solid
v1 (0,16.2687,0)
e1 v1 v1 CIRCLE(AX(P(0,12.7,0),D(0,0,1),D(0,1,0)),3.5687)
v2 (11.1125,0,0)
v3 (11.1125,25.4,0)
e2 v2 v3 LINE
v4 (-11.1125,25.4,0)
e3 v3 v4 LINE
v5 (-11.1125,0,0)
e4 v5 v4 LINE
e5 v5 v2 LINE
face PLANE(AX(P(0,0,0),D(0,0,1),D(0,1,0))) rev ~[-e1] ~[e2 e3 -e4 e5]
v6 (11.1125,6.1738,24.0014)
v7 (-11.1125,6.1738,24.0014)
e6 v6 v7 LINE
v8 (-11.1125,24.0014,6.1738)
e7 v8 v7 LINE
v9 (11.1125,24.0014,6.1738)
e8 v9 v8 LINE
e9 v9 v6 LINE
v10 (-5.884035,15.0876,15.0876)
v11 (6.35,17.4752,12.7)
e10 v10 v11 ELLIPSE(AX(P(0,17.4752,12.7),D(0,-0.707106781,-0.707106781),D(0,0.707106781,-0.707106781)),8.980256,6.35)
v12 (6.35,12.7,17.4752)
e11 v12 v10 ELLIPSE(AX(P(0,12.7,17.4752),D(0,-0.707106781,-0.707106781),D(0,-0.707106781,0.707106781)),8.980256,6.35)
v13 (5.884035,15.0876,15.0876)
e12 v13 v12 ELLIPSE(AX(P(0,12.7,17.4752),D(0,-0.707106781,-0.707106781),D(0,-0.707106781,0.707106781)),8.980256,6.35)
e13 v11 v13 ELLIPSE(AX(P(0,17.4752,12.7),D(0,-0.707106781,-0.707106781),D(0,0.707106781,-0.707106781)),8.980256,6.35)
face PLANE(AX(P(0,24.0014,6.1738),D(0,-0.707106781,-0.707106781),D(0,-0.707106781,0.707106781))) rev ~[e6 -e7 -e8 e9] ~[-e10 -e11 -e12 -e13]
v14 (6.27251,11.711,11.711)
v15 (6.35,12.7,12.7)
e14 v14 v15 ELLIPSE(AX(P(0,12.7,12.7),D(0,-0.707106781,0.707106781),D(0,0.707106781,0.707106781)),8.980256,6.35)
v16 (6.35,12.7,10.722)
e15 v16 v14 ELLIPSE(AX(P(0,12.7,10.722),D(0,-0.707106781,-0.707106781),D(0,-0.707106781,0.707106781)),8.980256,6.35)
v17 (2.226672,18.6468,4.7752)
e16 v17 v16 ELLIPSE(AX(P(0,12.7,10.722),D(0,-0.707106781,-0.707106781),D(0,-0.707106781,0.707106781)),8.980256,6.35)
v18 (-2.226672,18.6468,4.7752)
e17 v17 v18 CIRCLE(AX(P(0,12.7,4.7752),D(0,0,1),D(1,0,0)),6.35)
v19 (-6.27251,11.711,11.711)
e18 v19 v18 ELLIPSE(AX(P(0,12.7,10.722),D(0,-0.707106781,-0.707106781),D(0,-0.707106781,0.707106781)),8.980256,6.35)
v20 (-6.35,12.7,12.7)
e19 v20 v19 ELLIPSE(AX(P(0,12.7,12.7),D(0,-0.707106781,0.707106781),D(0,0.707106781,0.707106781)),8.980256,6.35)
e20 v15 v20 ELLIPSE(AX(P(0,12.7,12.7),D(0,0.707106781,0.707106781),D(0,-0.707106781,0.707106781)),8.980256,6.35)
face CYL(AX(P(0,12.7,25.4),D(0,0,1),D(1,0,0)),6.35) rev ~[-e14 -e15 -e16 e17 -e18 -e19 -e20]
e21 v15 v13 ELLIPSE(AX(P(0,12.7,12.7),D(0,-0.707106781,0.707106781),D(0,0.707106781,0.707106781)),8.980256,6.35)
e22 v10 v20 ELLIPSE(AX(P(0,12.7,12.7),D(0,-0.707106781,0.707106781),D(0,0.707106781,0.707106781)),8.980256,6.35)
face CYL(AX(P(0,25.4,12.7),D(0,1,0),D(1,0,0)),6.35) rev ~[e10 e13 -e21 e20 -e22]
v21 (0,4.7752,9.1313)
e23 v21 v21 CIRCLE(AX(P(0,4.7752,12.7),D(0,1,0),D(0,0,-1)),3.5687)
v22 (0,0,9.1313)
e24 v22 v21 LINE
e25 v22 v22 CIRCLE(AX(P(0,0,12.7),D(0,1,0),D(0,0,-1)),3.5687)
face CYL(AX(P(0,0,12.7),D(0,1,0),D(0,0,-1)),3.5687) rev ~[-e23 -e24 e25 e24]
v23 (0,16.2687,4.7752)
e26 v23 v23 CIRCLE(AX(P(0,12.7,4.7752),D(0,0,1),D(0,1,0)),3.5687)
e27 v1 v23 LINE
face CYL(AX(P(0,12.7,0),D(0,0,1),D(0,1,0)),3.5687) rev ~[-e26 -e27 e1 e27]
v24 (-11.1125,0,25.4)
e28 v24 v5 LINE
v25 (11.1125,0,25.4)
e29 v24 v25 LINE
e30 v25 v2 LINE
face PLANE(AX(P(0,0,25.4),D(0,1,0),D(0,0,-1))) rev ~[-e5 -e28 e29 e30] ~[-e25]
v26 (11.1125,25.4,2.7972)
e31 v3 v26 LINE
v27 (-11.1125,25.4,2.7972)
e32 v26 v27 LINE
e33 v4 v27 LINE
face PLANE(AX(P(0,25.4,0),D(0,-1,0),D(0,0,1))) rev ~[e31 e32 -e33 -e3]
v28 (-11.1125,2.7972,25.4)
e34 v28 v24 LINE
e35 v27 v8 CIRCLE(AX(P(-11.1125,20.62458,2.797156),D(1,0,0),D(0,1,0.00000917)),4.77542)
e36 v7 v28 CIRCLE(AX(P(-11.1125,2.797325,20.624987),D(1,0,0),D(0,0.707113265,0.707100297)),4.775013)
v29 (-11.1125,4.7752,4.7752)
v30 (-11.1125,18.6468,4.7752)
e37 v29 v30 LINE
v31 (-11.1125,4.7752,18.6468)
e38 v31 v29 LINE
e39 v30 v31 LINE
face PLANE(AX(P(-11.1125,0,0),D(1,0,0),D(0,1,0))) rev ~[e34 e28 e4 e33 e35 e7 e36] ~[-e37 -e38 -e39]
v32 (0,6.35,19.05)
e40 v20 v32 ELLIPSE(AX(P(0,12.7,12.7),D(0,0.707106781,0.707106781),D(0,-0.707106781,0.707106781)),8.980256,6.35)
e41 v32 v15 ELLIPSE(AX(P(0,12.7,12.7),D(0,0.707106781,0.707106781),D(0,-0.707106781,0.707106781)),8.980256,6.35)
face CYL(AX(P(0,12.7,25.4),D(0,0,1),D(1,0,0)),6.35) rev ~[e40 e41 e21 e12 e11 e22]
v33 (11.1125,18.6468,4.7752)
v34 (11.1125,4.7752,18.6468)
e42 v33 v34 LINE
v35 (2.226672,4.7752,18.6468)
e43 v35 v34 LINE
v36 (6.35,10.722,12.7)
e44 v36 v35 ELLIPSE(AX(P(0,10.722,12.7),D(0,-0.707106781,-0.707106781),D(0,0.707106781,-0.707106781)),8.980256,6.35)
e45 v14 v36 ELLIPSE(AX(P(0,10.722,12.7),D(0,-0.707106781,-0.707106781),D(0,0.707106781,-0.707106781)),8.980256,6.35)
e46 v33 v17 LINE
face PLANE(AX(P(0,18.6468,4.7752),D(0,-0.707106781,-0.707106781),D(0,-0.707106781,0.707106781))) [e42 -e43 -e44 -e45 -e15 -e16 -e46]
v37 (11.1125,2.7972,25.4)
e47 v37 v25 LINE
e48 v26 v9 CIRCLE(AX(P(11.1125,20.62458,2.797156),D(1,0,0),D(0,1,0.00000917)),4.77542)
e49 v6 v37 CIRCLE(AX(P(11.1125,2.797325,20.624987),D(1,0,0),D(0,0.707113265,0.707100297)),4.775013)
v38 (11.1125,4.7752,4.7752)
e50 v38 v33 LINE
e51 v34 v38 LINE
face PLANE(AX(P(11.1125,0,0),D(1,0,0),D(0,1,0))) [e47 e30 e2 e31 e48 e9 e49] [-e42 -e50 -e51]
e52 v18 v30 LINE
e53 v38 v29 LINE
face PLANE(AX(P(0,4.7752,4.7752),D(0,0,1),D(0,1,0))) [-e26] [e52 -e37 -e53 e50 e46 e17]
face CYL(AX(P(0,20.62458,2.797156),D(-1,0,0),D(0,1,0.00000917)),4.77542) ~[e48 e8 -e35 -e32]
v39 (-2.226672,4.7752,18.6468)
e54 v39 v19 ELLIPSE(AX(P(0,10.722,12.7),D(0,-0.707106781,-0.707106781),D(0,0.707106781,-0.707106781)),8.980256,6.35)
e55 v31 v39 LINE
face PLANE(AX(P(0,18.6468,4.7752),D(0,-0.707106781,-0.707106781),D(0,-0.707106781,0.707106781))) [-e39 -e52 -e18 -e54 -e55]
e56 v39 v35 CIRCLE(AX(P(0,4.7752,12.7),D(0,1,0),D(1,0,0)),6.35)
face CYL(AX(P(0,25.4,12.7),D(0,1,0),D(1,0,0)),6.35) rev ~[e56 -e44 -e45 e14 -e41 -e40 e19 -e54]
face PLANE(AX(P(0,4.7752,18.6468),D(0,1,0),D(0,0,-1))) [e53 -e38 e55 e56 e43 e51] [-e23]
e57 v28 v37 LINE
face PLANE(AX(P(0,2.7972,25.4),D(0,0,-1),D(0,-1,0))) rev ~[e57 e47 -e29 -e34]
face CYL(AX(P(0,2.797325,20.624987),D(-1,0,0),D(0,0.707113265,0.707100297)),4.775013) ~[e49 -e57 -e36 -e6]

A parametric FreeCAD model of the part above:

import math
import FreeCAD as App
import Part
import Sketcher

V = App.Vector
Q = App.Units.Quantity

doc = App.newDocument("Part")
params = doc.addObject("Spreadsheet::Sheet", "Params")
for row, (alias, value) in enumerate([
    ("sketch1_width", "1 in"),
    ("sketch1_radius", "0.188 in"),
    ("pad1_length", "0.875 in"),
    ("sketch2_diameter", "0.281 in"),
    ("hole_diameter", "0.281 in"),
    ("hole_depth", "0.188 in"),
    ("sketch3_diameter", "0.281 in"),
    ("hole2_diameter", "0.281 in"),
    ("hole2_depth", "0.188 in"),
    ("sketch4_diameter", "0.5 in"),
    ("pocket1_length", "0.812 in"),
    ("sketch5_diameter", "0.5 in"),
    ("pocket2_length", "0.812 in"),
], start=1):
    params.set(f"A{row}", alias)
    params.set(f"B{row}", "=" + value)
    params.setAlias(f"B{row}", alias)

body = doc.addObject("PartDesign::Body", "Body")

sketch1 = body.newObject("Sketcher::SketchObject", "Sketch")
sketch1.AttachmentSupport = (doc.getObject("YZ_Plane"), [""])
sketch1.MapMode = "FlatFace"
sketch1.addGeometry([
    Part.ArcOfCircle(Part.Circle(V(2.8, 20.6, 0), V(0, 0, 1), 4.8), math.radians(45), math.radians(90)),
    Part.LineSegment(V(2.8, 25.4, 0), V(0, 25.4, 0)),
    Part.LineSegment(V(0, 25.4, 0), V(0, 0, 0)),
    Part.LineSegment(V(0, 0, 0), V(25.4, 0, 0)),
    Part.LineSegment(V(25.4, 0, 0), V(25.4, 2.8, 0)),
    Part.ArcOfCircle(Part.Circle(V(20.6, 2.8, 0), V(0, 0, 1), 4.8), math.radians(0), math.radians(45)),
    Part.LineSegment(V(24, 6.2, 0), V(6.2, 24, 0)),
    Part.LineSegment(V(4.8, 4.8, 0), V(4.8, 18.6, 0)),
    Part.LineSegment(V(4.8, 18.6, 0), V(18.6, 4.8, 0)),
    Part.LineSegment(V(18.6, 4.8, 0), V(4.8, 4.8, 0)),
], False)
sketch1.addConstraint([
    Sketcher.Constraint("Tangent", 0, 2, 1, 1),
    Sketcher.Constraint("Coincident", 1, 2, 2, 1),
    Sketcher.Constraint("Coincident", 2, 2, 3, 1),
    Sketcher.Constraint("Coincident", 3, 2, 4, 1),
    Sketcher.Constraint("Tangent", 4, 2, 5, 1),
    Sketcher.Constraint("Tangent", 5, 2, 6, 1),
    Sketcher.Constraint("Tangent", 6, 2, 0, 1),
    Sketcher.Constraint("Coincident", 7, 2, 8, 1),
    Sketcher.Constraint("Coincident", 8, 2, 9, 1),
    Sketcher.Constraint("Coincident", 9, 2, 7, 1),
    Sketcher.Constraint("Horizontal", 1),
    Sketcher.Constraint("Vertical", 2),
    Sketcher.Constraint("Horizontal", 3),
    Sketcher.Constraint("Vertical", 4),
    Sketcher.Constraint("Vertical", 7),
    Sketcher.Constraint("Horizontal", 9),
    Sketcher.Constraint("Coincident", 2, 2, -1, 1),
    Sketcher.Constraint("Equal", 0, 5),
    Sketcher.Constraint("Parallel", 6, 8),
    Sketcher.Constraint("Equal", 3, 2),
    Sketcher.Constraint("Equal", 1, 4),
    Sketcher.Constraint("DistanceX", 3, 1, 3, 2, Q("1 in")),
    Sketcher.Constraint("Radius", 0, Q("0.188 in")),
    Sketcher.Constraint("DistanceX", -1, 1, 7, 2, Q("0.188 in")),
    Sketcher.Constraint("DistanceY", -1, 1, 8, 2, Q("0.188 in")),
    Sketcher.Constraint("Distance", 6, Q("0.9926 in")),
    Sketcher.Constraint("DistanceX", 9, 2, 9, 1, Q("13.8716 mm")),
])
sketch1.setExpression("Constraints[21]", "Params.sketch1_width")
sketch1.setExpression("Constraints[22]", "Params.sketch1_radius")
pad1 = body.newObject("PartDesign::Pad", "Pad")
pad1.Profile = sketch1
pad1.setExpression("Length", "Params.pad1_length")
pad1.Midplane = True

sketch2 = body.newObject("Sketcher::SketchObject", "Sketch001")
sketch2.AttachmentSupport = (doc.getObject("XZ_Plane"), [""])
sketch2.MapMode = "FlatFace"
sketch2.addGeometry(Part.Circle(V(0, 12.7, 0), V(0, 0, 1), 3.6), False)
sketch2.addConstraint([
    Sketcher.Constraint("PointOnObject", 0, 3, -2),
    Sketcher.Constraint("Diameter", 0, Q("0.281 in")),
    Sketcher.Constraint("DistanceY", -1, 1, 0, 3, Q("0.5 in")),
])
sketch2.setExpression("Constraints[1]", "Params.sketch2_diameter")
doc.recompute()
hole = body.newObject("PartDesign::Hole", "Hole")
hole.Profile = sketch2
hole.ThreadType = "None"
hole.setExpression("Diameter", "Params.hole_diameter")
hole.DepthType = "Dimension"
hole.setExpression("Depth", "Params.hole_depth")
hole.DrillPoint = "Flat"

sketch3 = body.newObject("Sketcher::SketchObject", "Sketch002")
sketch3.AttachmentSupport = (doc.getObject("XY_Plane"), [""])
sketch3.MapMode = "FlatFace"
sketch3.addGeometry(Part.Circle(V(0, 12.7, 0), V(0, 0, 1), 3.6), False)
sketch3.addConstraint([
    Sketcher.Constraint("PointOnObject", 0, 3, -2),
    Sketcher.Constraint("Diameter", 0, Q("0.281 in")),
    Sketcher.Constraint("DistanceY", -1, 1, 0, 3, Q("0.5 in")),
])
sketch3.setExpression("Constraints[1]", "Params.sketch3_diameter")
doc.recompute()
hole2 = body.newObject("PartDesign::Hole", "Hole001")
hole2.Profile = sketch3
hole2.ThreadType = "None"
hole2.setExpression("Diameter", "Params.hole2_diameter")
hole2.DepthType = "Dimension"
hole2.setExpression("Depth", "Params.hole2_depth")
hole2.DrillPoint = "Flat"
hole2.Reversed = True

sketch4 = body.newObject("Sketcher::SketchObject", "Sketch003")
sketch4.AttachmentSupport = (doc.getObject("XY_Plane"), [""])
sketch4.MapMode = "FlatFace"
sketch4.AttachmentOffset = App.Placement(V(0, 0, 1 * 25.4), App.Rotation())
sketch4.addGeometry(Part.Circle(V(0, 13, 0), V(0, 0, 1), 6), False)
sketch4.addConstraint([
    Sketcher.Constraint("PointOnObject", 0, 3, -2),
    Sketcher.Constraint("Diameter", 0, Q("0.5 in")),
    Sketcher.Constraint("DistanceY", -1, 1, 0, 3, Q("0.5 in")),
])
sketch4.setExpression("Constraints[1]", "Params.sketch4_diameter")
pocket1 = body.newObject("PartDesign::Pocket", "Pocket")
pocket1.Profile = sketch4
pocket1.setExpression("Length", "Params.pocket1_length")

sketch5 = body.newObject("Sketcher::SketchObject", "Sketch004")
sketch5.AttachmentSupport = (doc.getObject("XZ_Plane"), [""])
sketch5.MapMode = "FlatFace"
sketch5.AttachmentOffset = App.Placement(V(0, 0, -1 * 25.4), App.Rotation())
sketch5.addGeometry(Part.Circle(V(0, 13, 0), V(0, 0, 1), 6), False)
sketch5.addConstraint([
    Sketcher.Constraint("PointOnObject", 0, 3, -2),
    Sketcher.Constraint("Diameter", 0, Q("0.5 in")),
    Sketcher.Constraint("DistanceY", -1, 1, 0, 3, Q("0.5 in")),
])
sketch5.setExpression("Constraints[1]", "Params.sketch5_diameter")
pocket2 = body.newObject("PartDesign::Pocket", "Pocket001")
pocket2.Profile = sketch5
pocket2.setExpression("Length", "Params.pocket2_length")
pocket2.Reversed = True

doc.recompute()
